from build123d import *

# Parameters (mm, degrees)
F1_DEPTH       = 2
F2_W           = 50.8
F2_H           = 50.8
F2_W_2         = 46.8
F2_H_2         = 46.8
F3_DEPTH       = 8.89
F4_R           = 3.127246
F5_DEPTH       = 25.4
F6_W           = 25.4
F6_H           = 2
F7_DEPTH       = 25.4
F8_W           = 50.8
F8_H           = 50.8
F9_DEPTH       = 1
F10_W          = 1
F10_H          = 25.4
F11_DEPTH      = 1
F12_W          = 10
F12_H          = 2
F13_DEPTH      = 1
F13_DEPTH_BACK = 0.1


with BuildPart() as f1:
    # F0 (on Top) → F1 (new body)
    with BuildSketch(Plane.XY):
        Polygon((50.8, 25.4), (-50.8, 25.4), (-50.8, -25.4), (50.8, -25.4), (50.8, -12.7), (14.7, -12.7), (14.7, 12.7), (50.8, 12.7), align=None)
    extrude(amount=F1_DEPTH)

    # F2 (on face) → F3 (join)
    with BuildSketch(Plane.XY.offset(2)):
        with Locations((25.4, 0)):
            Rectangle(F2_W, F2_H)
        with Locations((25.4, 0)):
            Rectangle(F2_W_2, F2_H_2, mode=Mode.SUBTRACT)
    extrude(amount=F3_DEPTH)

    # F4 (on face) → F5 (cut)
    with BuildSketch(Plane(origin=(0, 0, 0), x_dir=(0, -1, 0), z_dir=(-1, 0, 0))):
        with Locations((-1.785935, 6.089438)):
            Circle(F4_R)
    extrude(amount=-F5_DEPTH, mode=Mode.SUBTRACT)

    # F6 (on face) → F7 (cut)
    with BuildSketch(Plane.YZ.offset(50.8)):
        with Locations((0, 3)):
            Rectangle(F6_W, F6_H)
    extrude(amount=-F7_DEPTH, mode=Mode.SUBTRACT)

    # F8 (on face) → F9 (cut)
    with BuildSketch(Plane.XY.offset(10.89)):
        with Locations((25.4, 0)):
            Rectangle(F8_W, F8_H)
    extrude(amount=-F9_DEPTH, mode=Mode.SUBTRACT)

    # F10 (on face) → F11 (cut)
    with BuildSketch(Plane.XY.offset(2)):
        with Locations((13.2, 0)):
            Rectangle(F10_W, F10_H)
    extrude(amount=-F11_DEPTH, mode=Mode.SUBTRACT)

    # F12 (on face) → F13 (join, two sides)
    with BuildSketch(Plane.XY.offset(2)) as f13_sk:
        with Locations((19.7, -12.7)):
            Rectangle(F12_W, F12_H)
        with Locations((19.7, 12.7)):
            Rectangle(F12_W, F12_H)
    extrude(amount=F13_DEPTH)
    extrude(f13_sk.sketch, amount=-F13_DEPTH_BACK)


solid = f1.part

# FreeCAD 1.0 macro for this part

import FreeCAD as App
import Part
import Sketcher

V = App.Vector
Q = App.Units.Quantity


def add_polygon(sketch, points):
    """Adds a closed chain of lines whose ends are joined by coincident constraints."""
    first, n = sketch.GeometryCount, len(points)
    for a, b in zip(points, points[1:] + points[:1]):
        sketch.addGeometry(Part.LineSegment(App.Vector(*a, 0), App.Vector(*b, 0)), False)
    for i in range(n):
        sketch.addConstraint(Sketcher.Constraint("Coincident", first + i, 2, first + (i + 1) % n, 1))

doc = App.newDocument("Part")
params = doc.addObject("Spreadsheet::Sheet", "Params")
for row, (alias, value) in enumerate([
    ("sketch1_width", "101.6 mm"),
    ("sketch1_width2", "36.1 mm"),
    ("sketch1_height", "50.8 mm"),
    ("sketch1_height2", "12.7 mm"),
    ("pad1_length", "2 mm"),
    ("sketch2_width", "50.8 mm"),
    ("sketch2_width2", "46.8 mm"),
    ("pad2_length", "8.89 mm"),
    ("pocket1_length", "25.4 mm"),
    ("sketch4_height", "2 mm"),
    ("sketch4_width", "25.4 mm"),
    ("pocket2_length", "25.4 mm"),
    ("sketch5_width", "50.8 mm"),
    ("pocket3_length", "1 mm"),
    ("sketch6_width", "1 mm"),
    ("sketch6_height", "25.4 mm"),
    ("pocket4_length", "1 mm"),
    ("sketch7_width", "10 mm"),
    ("sketch7_height", "2 mm"),
    ("pad3_length", "1 mm"),
    ("pad3_length2", "0.1 mm"),
], start=1):
    params.set(f"A{row}", alias)
    params.set(f"B{row}", "=" + value)
    params.setAlias(f"B{row}", alias)

body = doc.addObject("PartDesign::Body", "Body")

# Sketch on XY plane
sketch1 = body.newObject("Sketcher::SketchObject", "Sketch")
sketch1.AttachmentSupport = (doc.getObject("XY_Plane"), [""])
sketch1.MapMode = "FlatFace"
add_polygon(sketch1, [(51, 25), (-51, 25), (-51, -25), (51, -25), (51, -13), (15, -13), (15, 13), (51, 13)])  # lines 0-7
sketch1.addConstraint(Sketcher.Constraint("Horizontal", 0))
sketch1.addConstraint(Sketcher.Constraint("Vertical", 1))
sketch1.addConstraint(Sketcher.Constraint("Horizontal", 2))
sketch1.addConstraint(Sketcher.Constraint("Vertical", 3))
sketch1.addConstraint(Sketcher.Constraint("Horizontal", 4))
sketch1.addConstraint(Sketcher.Constraint("Vertical", 5))
sketch1.addConstraint(Sketcher.Constraint("Horizontal", 6))
sketch1.addConstraint(Sketcher.Constraint("Vertical", 7))
sketch1.addConstraint(Sketcher.Constraint("Symmetric", 0, 2, 2, 2, -1, 1))
sketch1.addConstraint(Sketcher.Constraint("Symmetric", 3, 2, 6, 2, -1))
sketch1.addConstraint(Sketcher.Constraint("DistanceX", 0, 2, 0, 1, Q("101.6 mm")))
sketch1.addConstraint(Sketcher.Constraint("DistanceX", 4, 2, 4, 1, Q("36.1 mm")))
sketch1.addConstraint(Sketcher.Constraint("DistanceY", 1, 2, 1, 1, Q("50.8 mm")))
sketch1.addConstraint(Sketcher.Constraint("DistanceY", 3, 1, 3, 2, Q("12.7 mm")))
sketch1.setExpression("Constraints[18]", "Params.sketch1_width")
sketch1.setExpression("Constraints[19]", "Params.sketch1_width2")
sketch1.setExpression("Constraints[20]", "Params.sketch1_height")
sketch1.setExpression("Constraints[21]", "Params.sketch1_height2")
pad1 = body.newObject("PartDesign::Pad", "Pad")
pad1.Profile = sketch1
pad1.setExpression("Length", "Params.pad1_length")

# Sketch on XY plane
sketch2 = body.newObject("Sketcher::SketchObject", "Sketch001")
sketch2.AttachmentSupport = (doc.getObject("XY_Plane"), [""])
sketch2.MapMode = "FlatFace"
sketch2.AttachmentOffset = App.Placement(V(0, 0, 2), App.Rotation())
add_polygon(sketch2, [(0, 25), (0, -25), (51, -25), (51, 25)])  # lines 0-3
add_polygon(sketch2, [(49, -23), (2, -23), (2, 23), (49, 23)])  # lines 4-7
sketch2.addConstraint(Sketcher.Constraint("Vertical", 0))
sketch2.addConstraint(Sketcher.Constraint("Horizontal", 1))
sketch2.addConstraint(Sketcher.Constraint("Vertical", 2))
sketch2.addConstraint(Sketcher.Constraint("Horizontal", 3))
sketch2.addConstraint(Sketcher.Constraint("Horizontal", 4))
sketch2.addConstraint(Sketcher.Constraint("Vertical", 5))
sketch2.addConstraint(Sketcher.Constraint("Horizontal", 6))
sketch2.addConstraint(Sketcher.Constraint("Vertical", 7))
sketch2.addConstraint(Sketcher.Constraint("Symmetric", 0, 2, 3, 2, -1, 1))
sketch2.addConstraint(Sketcher.Constraint("Equal", 3, 0))
sketch2.addConstraint(Sketcher.Constraint("Equal", 6, 5))
sketch2.addConstraint(Sketcher.Constraint("DistanceX", 1, 1, 1, 2, Q("50.8 mm")))
sketch2.addConstraint(Sketcher.Constraint("DistanceX", 4, 2, 4, 1, Q("46.8 mm")))
sketch2.addConstraint(Sketcher.Constraint("DistanceX", -1, 1, 4, 2, Q("2 mm")))
sketch2.addConstraint(Sketcher.Constraint("DistanceY", 0, 2, 4, 2, Q("2 mm")))
sketch2.setExpression("Constraints[19]", "Params.sketch2_width")
sketch2.setExpression("Constraints[20]", "Params.sketch2_width2")
pad2 = body.newObject("PartDesign::Pad", "Pad001")
pad2.Profile = sketch2
pad2.setExpression("Length", "Params.pad2_length")

# Sketch on YZ plane
sketch3 = body.newObject("Sketcher::SketchObject", "Sketch002")
sketch3.AttachmentSupport = (doc.getObject("YZ_Plane"), [""])
sketch3.MapMode = "FlatFace"
sketch3.addGeometry(Part.Circle(V(1.8, 6.1, 0), V(0, 0, 1), 3.1), False)
sketch3.addConstraint(Sketcher.Constraint("Diameter", 0, Q("6.254492 mm")))
sketch3.addConstraint(Sketcher.Constraint("DistanceY", -1, 1, 0, 3, Q("6.089438 mm")))
sketch3.addConstraint(Sketcher.Constraint("DistanceX", -1, 1, 0, 3, Q("1.785935 mm")))
pocket1 = body.newObject("PartDesign::Pocket", "Pocket")
pocket1.Profile = sketch3
pocket1.setExpression("Length", "Params.pocket1_length")
pocket1.Reversed = True

# Sketch on YZ plane
sketch4 = body.newObject("Sketcher::SketchObject", "Sketch003")
sketch4.AttachmentSupport = (doc.getObject("YZ_Plane"), [""])
sketch4.MapMode = "FlatFace"
sketch4.AttachmentOffset = App.Placement(V(0, 0, 50.8), App.Rotation())
add_polygon(sketch4, [(-12.7, 4), (-12.7, 2), (12.7, 2), (12.7, 4)])  # lines 0-3
sketch4.addConstraint(Sketcher.Constraint("Vertical", 0))
sketch4.addConstraint(Sketcher.Constraint("Horizontal", 1))
sketch4.addConstraint(Sketcher.Constraint("Vertical", 2))
sketch4.addConstraint(Sketcher.Constraint("Horizontal", 3))
sketch4.addConstraint(Sketcher.Constraint("DistanceY", 0, 2, 0, 1, Q("2 mm")))
sketch4.addConstraint(Sketcher.Constraint("DistanceX", 1, 1, 1, 2, Q("25.4 mm")))
sketch4.addConstraint(Sketcher.Constraint("DistanceY", -1, 1, 0, 2, Q("2 mm")))
sketch4.addConstraint(Sketcher.Constraint("DistanceX", 0, 2, -1, 1, Q("12.7 mm")))
sketch4.setExpression("Constraints[8]", "Params.sketch4_height")
sketch4.setExpression("Constraints[9]", "Params.sketch4_width")
pocket2 = body.newObject("PartDesign::Pocket", "Pocket001")
pocket2.Profile = sketch4
pocket2.setExpression("Length", "Params.pocket2_length")

# Sketch on XY plane
sketch5 = body.newObject("Sketcher::SketchObject", "Sketch004")
sketch5.AttachmentSupport = (doc.getObject("XY_Plane"), [""])
sketch5.MapMode = "FlatFace"
sketch5.AttachmentOffset = App.Placement(V(0, 0, 10.89), App.Rotation())
add_polygon(sketch5, [(0, 25), (0, -25), (51, -25), (51, 25)])  # lines 0-3
sketch5.addConstraint(Sketcher.Constraint("Vertical", 0))
sketch5.addConstraint(Sketcher.Constraint("Horizontal", 1))
sketch5.addConstraint(Sketcher.Constraint("Vertical", 2))
sketch5.addConstraint(Sketcher.Constraint("Horizontal", 3))
sketch5.addConstraint(Sketcher.Constraint("Symmetric", 0, 2, 3, 2, -1, 1))
sketch5.addConstraint(Sketcher.Constraint("Equal", 3, 0))
sketch5.addConstraint(Sketcher.Constraint("DistanceX", 1, 1, 1, 2, Q("50.8 mm")))
sketch5.setExpression("Constraints[10]", "Params.sketch5_width")
pocket3 = body.newObject("PartDesign::Pocket", "Pocket002")
pocket3.Profile = sketch5
pocket3.setExpression("Length", "Params.pocket3_length")

# Sketch on XY plane
sketch6 = body.newObject("Sketcher::SketchObject", "Sketch005")
sketch6.AttachmentSupport = (doc.getObject("XY_Plane"), [""])
sketch6.MapMode = "FlatFace"
sketch6.AttachmentOffset = App.Placement(V(0, 0, 2), App.Rotation())
add_polygon(sketch6, [(12.7, 12.7), (12.7, -12.7), (13.7, -12.7), (13.7, 12.7)])  # lines 0-3
sketch6.addConstraint(Sketcher.Constraint("Vertical", 0))
sketch6.addConstraint(Sketcher.Constraint("Horizontal", 1))
sketch6.addConstraint(Sketcher.Constraint("Vertical", 2))
sketch6.addConstraint(Sketcher.Constraint("Horizontal", 3))
sketch6.addConstraint(Sketcher.Constraint("DistanceX", 1, 1, 1, 2, Q("1 mm")))
sketch6.addConstraint(Sketcher.Constraint("DistanceY", 0, 2, 0, 1, Q("25.4 mm")))
sketch6.addConstraint(Sketcher.Constraint("DistanceX", -1, 1, 0, 2, Q("12.7 mm")))
sketch6.addConstraint(Sketcher.Constraint("DistanceY", 0, 2, -1, 1, Q("12.7 mm")))
sketch6.setExpression("Constraints[8]", "Params.sketch6_width")
sketch6.setExpression("Constraints[9]", "Params.sketch6_height")
pocket4 = body.newObject("PartDesign::Pocket", "Pocket003")
pocket4.Profile = sketch6
pocket4.setExpression("Length", "Params.pocket4_length")

# Sketch on XY plane
sketch7 = body.newObject("Sketcher::SketchObject", "Sketch006")
sketch7.AttachmentSupport = (doc.getObject("XY_Plane"), [""])
sketch7.MapMode = "FlatFace"
sketch7.AttachmentOffset = App.Placement(V(0, 0, 2), App.Rotation())
add_polygon(sketch7, [(14.7, -11.7), (14.7, -13.7), (24.7, -13.7), (24.7, -11.7)])  # lines 0-3
add_polygon(sketch7, [(14.7, 13.7), (14.7, 11.7), (24.7, 11.7), (24.7, 13.7)])  # lines 4-7
sketch7.addConstraint(Sketcher.Constraint("Vertical", 0))
sketch7.addConstraint(Sketcher.Constraint("Horizontal", 1))
sketch7.addConstraint(Sketcher.Constraint("Vertical", 2))
sketch7.addConstraint(Sketcher.Constraint("Horizontal", 3))
sketch7.addConstraint(Sketcher.Constraint("Vertical", 4))
sketch7.addConstraint(Sketcher.Constraint("Horizontal", 5))
sketch7.addConstraint(Sketcher.Constraint("Vertical", 6))
sketch7.addConstraint(Sketcher.Constraint("Horizontal", 7))
sketch7.addConstraint(Sketcher.Constraint("Symmetric", 3, 2, 4, 2, -1))
sketch7.addConstraint(Sketcher.Constraint("Symmetric", 1, 2, 6, 2, -1))
sketch7.addConstraint(Sketcher.Constraint("DistanceX", 1, 1, 1, 2, Q("10 mm")))
sketch7.addConstraint(Sketcher.Constraint("DistanceY", 0, 2, 0, 1, Q("2 mm")))
sketch7.addConstraint(Sketcher.Constraint("DistanceX", -1, 1, 0, 2, Q("14.7 mm")))
sketch7.addConstraint(Sketcher.Constraint("DistanceY", 0, 2, -1, 1, Q("13.7 mm")))
sketch7.setExpression("Constraints[18]", "Params.sketch7_width")
sketch7.setExpression("Constraints[19]", "Params.sketch7_height")
pad3 = body.newObject("PartDesign::Pad", "Pad002")
pad3.Profile = sketch7
pad3.Type = "TwoLengths"
pad3.setExpression("Length", "Params.pad3_length")
pad3.setExpression("Length2", "Params.pad3_length2")

doc.recompute()
